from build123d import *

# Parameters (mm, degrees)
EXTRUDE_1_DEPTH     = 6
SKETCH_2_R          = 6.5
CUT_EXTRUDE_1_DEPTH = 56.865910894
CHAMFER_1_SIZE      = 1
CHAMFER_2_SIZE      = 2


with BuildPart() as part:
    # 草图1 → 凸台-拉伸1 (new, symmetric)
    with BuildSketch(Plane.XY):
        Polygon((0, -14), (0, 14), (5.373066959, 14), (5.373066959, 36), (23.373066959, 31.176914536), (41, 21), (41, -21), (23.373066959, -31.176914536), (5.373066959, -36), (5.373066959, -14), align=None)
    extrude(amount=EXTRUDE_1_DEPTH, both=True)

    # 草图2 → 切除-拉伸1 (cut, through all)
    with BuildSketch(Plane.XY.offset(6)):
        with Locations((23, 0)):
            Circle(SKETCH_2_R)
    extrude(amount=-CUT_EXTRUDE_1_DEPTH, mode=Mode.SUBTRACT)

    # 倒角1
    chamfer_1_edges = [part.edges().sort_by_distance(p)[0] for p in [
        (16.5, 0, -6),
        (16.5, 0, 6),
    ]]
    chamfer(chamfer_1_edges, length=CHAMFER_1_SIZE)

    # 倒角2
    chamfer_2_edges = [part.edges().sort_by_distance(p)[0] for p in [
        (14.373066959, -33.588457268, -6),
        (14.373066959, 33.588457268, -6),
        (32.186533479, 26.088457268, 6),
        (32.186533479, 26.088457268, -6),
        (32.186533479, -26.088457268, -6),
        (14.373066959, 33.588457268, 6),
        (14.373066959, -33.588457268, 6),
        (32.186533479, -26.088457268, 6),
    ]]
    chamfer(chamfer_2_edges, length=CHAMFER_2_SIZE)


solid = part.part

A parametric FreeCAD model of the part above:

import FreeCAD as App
import Part
import Sketcher

V = App.Vector
Q = App.Units.Quantity


def edges_at(feature, points):
    """Names of the edges that pass closest to the given points."""
    edges = feature.Shape.Edges
    near = lambda p: min(range(len(edges)), key=lambda i: edges[i].distToShape(Part.Vertex(*p))[0])
    return sorted({f"Edge{near(p) + 1}" for p in points})


def add_polygon(sketch, points):
    """Adds a closed chain of lines whose ends are joined by coincident constraints."""
    first, n = sketch.GeometryCount, len(points)
    for a, b in zip(points, points[1:] + points[:1]):
        sketch.addGeometry(Part.LineSegment(App.Vector(*a, 0), App.Vector(*b, 0)), False)
    for i in range(n):
        sketch.addConstraint(Sketcher.Constraint("Coincident", first + i, 2, first + (i + 1) % n, 1))

doc = App.newDocument("Part")
body = doc.addObject("PartDesign::Body", "Body")

# Sketch on XY plane
sketch1 = body.newObject("Sketcher::SketchObject", "Sketch")
sketch1.AttachmentSupport = (doc.getObject("XY_Plane"), [""])
sketch1.MapMode = "FlatFace"
add_polygon(sketch1, [(0, 14), (0, -14), (5, -14), (5, -36), (23, -31), (41, -21), (41, 21), (23, 31), (5, 36), (5, 14)])  # lines 0-9
sketch1.addConstraint([
    Sketcher.Constraint("Vertical", 0),
    Sketcher.Constraint("Horizontal", 1),
    Sketcher.Constraint("Vertical", 2),
    Sketcher.Constraint("Vertical", 5),
    Sketcher.Constraint("Vertical", 8),
    Sketcher.Constraint("Horizontal", 9),
    Sketcher.Constraint("Symmetric", 0, 2, 9, 2, -1, 1),
    Sketcher.Constraint("Symmetric", 3, 2, 6, 2, -1),
    Sketcher.Constraint("Symmetric", 2, 2, 7, 2, -1),
    Sketcher.Constraint("Equal", 4, 6),
    Sketcher.Constraint("DistanceY", 0, 2, 0, 1, 28.0),
    Sketcher.Constraint("DistanceY", 2, 2, 2, 1, 22.0),
    Sketcher.Constraint("DistanceY", 5, 1, 5, 2, 42.0),
    Sketcher.Constraint("Angle", 3, Q("15 deg")),
    Sketcher.Constraint("Angle", 4, Q("30 deg")),
    Sketcher.Constraint("DistanceX", -1, 1, 4, 2, 41.0),
    Sketcher.Constraint("DistanceX", 2, 2, 3, 2, 18.0),
])
pad1 = body.newObject("PartDesign::Pad", "Pad")
pad1.Profile = sketch1
pad1.Length = 12
pad1.Midplane = True

# Sketch on XY plane
sketch2 = body.newObject("Sketcher::SketchObject", "Sketch001")
sketch2.AttachmentSupport = (doc.getObject("XY_Plane"), [""])
sketch2.MapMode = "FlatFace"
sketch2.AttachmentOffset = App.Placement(V(0, 0, 6), App.Rotation())
sketch2.addGeometry(Part.Circle(V(23, 0, 0), V(0, 0, 1), 6), False)
sketch2.addConstraint([
    Sketcher.Constraint("PointOnObject", 0, 3, -1),
    Sketcher.Constraint("Diameter", 0, 13.0),
    Sketcher.Constraint("DistanceX", -1, 1, 0, 3, 23.0),
])
pocket1 = body.newObject("PartDesign::Pocket", "Pocket")
pocket1.Profile = sketch2
pocket1.Type = "ThroughAll"
doc.recompute()

chamfer = body.newObject("PartDesign::Chamfer", "Chamfer")
chamfer.Base = (pocket1, edges_at(pocket1, [(16.5, 0, -6), (16.5, 0, 6)]))
chamfer.Size = 1
doc.recompute()

chamfer2 = body.newObject("PartDesign::Chamfer", "Chamfer001")
chamfer2.Base = (chamfer, edges_at(chamfer, [
    (14.373, -33.588, -6),
    (14.373, 33.588, -6),
    (32.187, 26.088, 6),
    (32.187, 26.088, -6),
    (32.187, -26.088, -6),
    (14.373, 33.588, 6),
    (14.373, -33.588, 6),
    (32.187, -26.088, 6),
]))
chamfer2.Size = 2

doc.recompute()
